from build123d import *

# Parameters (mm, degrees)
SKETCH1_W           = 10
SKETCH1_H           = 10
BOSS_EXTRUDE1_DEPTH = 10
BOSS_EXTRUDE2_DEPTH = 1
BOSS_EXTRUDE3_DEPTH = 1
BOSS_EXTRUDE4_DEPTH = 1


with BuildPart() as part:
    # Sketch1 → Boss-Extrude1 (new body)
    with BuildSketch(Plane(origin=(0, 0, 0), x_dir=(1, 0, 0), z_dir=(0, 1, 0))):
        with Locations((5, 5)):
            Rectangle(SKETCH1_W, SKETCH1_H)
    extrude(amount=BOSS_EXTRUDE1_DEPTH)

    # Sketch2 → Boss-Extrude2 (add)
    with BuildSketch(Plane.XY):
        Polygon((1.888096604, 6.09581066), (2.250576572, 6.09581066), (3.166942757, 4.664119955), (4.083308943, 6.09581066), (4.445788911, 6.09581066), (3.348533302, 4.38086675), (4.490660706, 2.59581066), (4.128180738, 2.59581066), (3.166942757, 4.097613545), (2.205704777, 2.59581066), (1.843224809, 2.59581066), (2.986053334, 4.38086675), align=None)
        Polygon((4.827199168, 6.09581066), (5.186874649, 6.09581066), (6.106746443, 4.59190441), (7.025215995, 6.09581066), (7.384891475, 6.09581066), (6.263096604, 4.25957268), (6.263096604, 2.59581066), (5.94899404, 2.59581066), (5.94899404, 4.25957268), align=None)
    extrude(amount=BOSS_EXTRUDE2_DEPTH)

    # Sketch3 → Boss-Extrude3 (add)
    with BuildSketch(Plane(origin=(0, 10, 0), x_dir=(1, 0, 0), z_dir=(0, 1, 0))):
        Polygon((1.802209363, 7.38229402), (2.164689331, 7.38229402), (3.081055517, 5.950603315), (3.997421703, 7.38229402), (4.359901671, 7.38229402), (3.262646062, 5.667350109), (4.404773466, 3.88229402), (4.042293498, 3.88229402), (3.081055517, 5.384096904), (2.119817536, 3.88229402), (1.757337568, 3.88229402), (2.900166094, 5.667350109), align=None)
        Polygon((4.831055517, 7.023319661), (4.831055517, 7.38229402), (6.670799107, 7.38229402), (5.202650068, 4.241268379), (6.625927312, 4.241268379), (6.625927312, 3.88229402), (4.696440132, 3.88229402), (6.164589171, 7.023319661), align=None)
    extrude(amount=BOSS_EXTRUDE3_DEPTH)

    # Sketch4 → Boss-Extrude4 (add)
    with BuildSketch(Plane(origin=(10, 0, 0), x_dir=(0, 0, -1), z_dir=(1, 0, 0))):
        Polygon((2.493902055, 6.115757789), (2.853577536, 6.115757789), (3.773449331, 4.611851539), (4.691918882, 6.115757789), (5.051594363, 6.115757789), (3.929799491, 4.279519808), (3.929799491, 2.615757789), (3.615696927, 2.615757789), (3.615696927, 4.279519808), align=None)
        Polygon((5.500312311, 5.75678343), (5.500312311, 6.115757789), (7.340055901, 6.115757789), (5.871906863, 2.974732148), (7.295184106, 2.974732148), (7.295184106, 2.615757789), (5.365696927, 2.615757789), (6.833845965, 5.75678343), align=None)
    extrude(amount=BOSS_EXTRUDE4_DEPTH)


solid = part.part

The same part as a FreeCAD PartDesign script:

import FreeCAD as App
import Part
import Sketcher
Q = App.Units.Quantity


def add_polygon(sketch, points):
    """Adds a closed chain of lines whose ends are joined by coincident constraints."""
    first, n = sketch.GeometryCount, len(points)
    for a, b in zip(points, points[1:] + points[:1]):
        sketch.addGeometry(Part.LineSegment(App.Vector(*a, 0), App.Vector(*b, 0)), False)
    for i in range(n):
        sketch.addConstraint(Sketcher.Constraint("Coincident", first + i, 2, first + (i + 1) % n, 1))

doc = App.newDocument("Part")
body = doc.addObject("PartDesign::Body", "Body")

sketch1 = body.newObject("Sketcher::SketchObject", "Sketch")
sketch1.AttachmentSupport = (doc.getObject("XZ_Plane"), [""])
sketch1.MapMode = "FlatFace"
add_polygon(sketch1, [(0, -10), (0, 0), (10, 0), (10, -10)])
sketch1.addConstraint([
    Sketcher.Constraint("Vertical", 0),
    Sketcher.Constraint("Horizontal", 1),
    Sketcher.Constraint("Vertical", 2),
    Sketcher.Constraint("Horizontal", 3),
    Sketcher.Constraint("Coincident", 0, 2, -1, 1),
    Sketcher.Constraint("Equal", 3, 0),
    Sketcher.Constraint("DistanceX", 1, 1, 1, 2, Q("10 mm")),
])
pad1 = body.newObject("PartDesign::Pad", "Pad")
pad1.Profile = sketch1
pad1.Length = 10
pad1.Reversed = True

sketch2 = body.newObject("Sketcher::SketchObject", "Sketch001")
sketch2.AttachmentSupport = (doc.getObject("XY_Plane"), [""])
sketch2.MapMode = "FlatFace"
add_polygon(sketch2, [(2.25, 6.1), (1.89, 6.1), (2.99, 4.38), (1.84, 2.6), (2.21, 2.6), (3.17, 4.1), (4.13, 2.6), (4.49, 2.6), (3.35, 4.38), (4.45, 6.1), (4.08, 6.1), (3.17, 4.66)])
add_polygon(sketch2, [(5.19, 6.1), (4.83, 6.1), (5.95, 4.26), (5.95, 2.6), (6.26, 2.6), (6.26, 4.26), (7.38, 6.1), (7.03, 6.1), (6.11, 4.59)])
sketch2.addConstraint([
    Sketcher.Constraint("Horizontal", 0),
    Sketcher.Constraint("Horizontal", 3),
    Sketcher.Constraint("Horizontal", 6),
    Sketcher.Constraint("Horizontal", 9),
    Sketcher.Constraint("Horizontal", 12),
    Sketcher.Constraint("Vertical", 14),
    Sketcher.Constraint("Horizontal", 15),
    Sketcher.Constraint("Vertical", 16),
    Sketcher.Constraint("Horizontal", 18),
    Sketcher.Constraint("Parallel", 4, 10),
    Sketcher.Constraint("Parallel", 5, 11),
    Sketcher.Constraint("Horizontal", 3, 2, 5, 2),
    Sketcher.Constraint("Horizontal", 1, 2, 7, 2),
    Sketcher.Constraint("Horizontal", 0, 2, 8, 2),
    Sketcher.Constraint("Horizontal", 11, 2, 12, 2),
    Sketcher.Constraint("Horizontal", 6, 2, 14, 2),
    Sketcher.Constraint("Horizontal", 13, 2, 16, 2),
    Sketcher.Constraint("Horizontal", 12, 2, 17, 2),
    Sketcher.Constraint("Vertical", 4, 2, 10, 2),
    Sketcher.Constraint("Equal", 0, 3),
    Sketcher.Constraint("Equal", 3, 6),
    Sketcher.Constraint("Equal", 6, 9),
    Sketcher.Constraint("Equal", 12, 18),
    Sketcher.Constraint("Equal", 4, 5),
    Sketcher.Constraint("Equal", 13, 17),
    Sketcher.Constraint("DistanceY", 2, 2, 0, 2, Q("3.5 mm")),
    Sketcher.Constraint("DistanceX", 0, 2, 0, 1, Q("0.36248 mm")),
    Sketcher.Constraint("DistanceX", -1, 1, 12, 2, Q("4.827199 mm")),
    Sketcher.Constraint("Distance", 7, Q("2.11917 mm")),
    Sketcher.Constraint("Distance", 13, Q("2.151788 mm")),
    Sketcher.Constraint("Distance", 19, Q("1.762192 mm")),
    Sketcher.Constraint("DistanceX", 12, 2, 12, 1, Q("0.359675 mm")),
    Sketcher.Constraint("DistanceX", 15, 1, 15, 2, Q("0.314103 mm")),
    Sketcher.Constraint("DistanceY", 14, 2, 14, 1, Q("1.663762 mm")),
    Sketcher.Constraint("DistanceY", -1, 1, 0, 2, Q("6.095811 mm")),
    Sketcher.Constraint("DistanceX", -1, 1, 5, 2, Q("4.128181 mm")),
    Sketcher.Constraint("DistanceX", -1, 1, 8, 2, Q("4.445789 mm")),
    Sketcher.Constraint("DistanceY", -1, 1, 10, 2, Q("4.66412 mm")),
    Sketcher.Constraint("DistanceX", 2, 2, 1, 2, Q("1.142829 mm")),
    Sketcher.Constraint("DistanceX", 1, 2, 4, 2, Q("0.180889 mm")),
    Sketcher.Constraint("DistanceX", 4, 2, 7, 2, Q("0.181591 mm")),
    Sketcher.Constraint("DistanceX", 19, 2, 16, 2, Q("0.15635 mm")),
])
pad2 = body.newObject("PartDesign::Pad", "Pad001")
pad2.Profile = sketch2
pad2.Length = 1

sketch3 = body.newObject("Sketcher::SketchObject", "Sketch002")
sketch3.AttachmentSupport = (doc.getObject("XZ_Plane"), [""])
sketch3.MapMode = "FlatFace"
sketch3.AttachmentOffset = App.Placement(App.Vector(0, 0, -10), App.Rotation())
add_polygon(sketch3, [(2.16, -7.38), (1.8, -7.38), (2.9, -5.67), (1.76, -3.88), (2.12, -3.88), (3.08, -5.38), (4.04, -3.88), (4.4, -3.88), (3.26, -5.67), (4.36, -7.38), (4, -7.38), (3.08, -5.95)])
add_polygon(sketch3, [(4.83, -7.38), (4.83, -7.02), (6.16, -7.02), (4.7, -3.88), (6.63, -3.88), (6.63, -4.24), (5.2, -4.24), (6.67, -7.38)])
sketch3.addConstraint([
    Sketcher.Constraint("Horizontal", 0),
    Sketcher.Constraint("Horizontal", 3),
    Sketcher.Constraint("Horizontal", 6),
    Sketcher.Constraint("Horizontal", 9),
    Sketcher.Constraint("Vertical", 12),
    Sketcher.Constraint("Horizontal", 13),
    Sketcher.Constraint("Horizontal", 15),
    Sketcher.Constraint("Vertical", 16),
    Sketcher.Constraint("Horizontal", 17),
    Sketcher.Constraint("Horizontal", 19),
    Sketcher.Constraint("Parallel", 4, 10),
    Sketcher.Constraint("Parallel", 5, 11),
    Sketcher.Constraint("Parallel", 14, 18),
    Sketcher.Constraint("Horizontal", 3, 2, 5, 2),
    Sketcher.Constraint("Horizontal", 1, 2, 7, 2),
    Sketcher.Constraint("Horizontal", 0, 2, 8, 2),
    Sketcher.Constraint("Horizontal", 6, 2, 14, 2),
    Sketcher.Constraint("Horizontal", 11, 2, 18, 2),
    Sketcher.Constraint("Vertical", 4, 2, 10, 2),
    Sketcher.Constraint("Equal", 0, 3),
    Sketcher.Constraint("Equal", 3, 6),
    Sketcher.Constraint("Equal", 6, 9),
    Sketcher.Constraint("Equal", 12, 16),
    Sketcher.Constraint("Equal", 4, 5),
    Sketcher.Constraint("DistanceY", 0, 2, 2, 2, Q("3.5 mm")),
    Sketcher.Constraint("DistanceX", 10, 2, 12, 2, Q("1.75 mm")),
    Sketcher.Constraint("DistanceX", 0, 2, 0, 1, Q("0.36248 mm")),
    Sketcher.Constraint("DistanceX", -1, 1, 8, 2, Q("4.359902 mm")),
    Sketcher.Constraint("DistanceX", -1, 1, 18, 2, Q("6.670799 mm")),
    Sketcher.Constraint("Distance", 7, Q("2.11917 mm")),
    Sketcher.Constraint("DistanceX", 13, 1, 13, 2, Q("1.333534 mm")),
    Sketcher.Constraint("DistanceX", 15, 1, 15, 2, Q("1.929487 mm")),
    Sketcher.Constraint("DistanceX", 17, 2, 17, 1, Q("1.423277 mm")),
    Sketcher.Constraint("DistanceY", 12, 1, 12, 2, Q("0.358974 mm")),
    Sketcher.Constraint("DistanceY", 1, 2, -1, 1, Q("5.66735 mm")),
    Sketcher.Constraint("DistanceY", 12, 2, -1, 1, Q("7.02332 mm")),
    Sketcher.Constraint("DistanceX", -1, 1, 14, 2, Q("4.69644 mm")),
    Sketcher.Constraint("DistanceX", 2, 2, 1, 2, Q("1.142829 mm")),
    Sketcher.Constraint("DistanceX", 2, 2, 0, 2, Q("0.044872 mm")),
    Sketcher.Constraint("DistanceY", 9, 2, 10, 2, Q("1.431691 mm")),
])
pad3 = body.newObject("PartDesign::Pad", "Pad002")
pad3.Profile = sketch3
pad3.Length = 1
pad3.Reversed = True

sketch4 = body.newObject("Sketcher::SketchObject", "Sketch003")
sketch4.AttachmentSupport = (doc.getObject("YZ_Plane"), [""])
sketch4.MapMode = "FlatFace"
sketch4.AttachmentOffset = App.Placement(App.Vector(0, 0, 10), App.Rotation())
add_polygon(sketch4, [(6.12, -2.85), (6.12, -2.49), (4.28, -3.62), (2.62, -3.62), (2.62, -3.93), (4.28, -3.93), (6.12, -5.05), (6.12, -4.69), (4.61, -3.77)])
add_polygon(sketch4, [(6.12, -5.5), (5.76, -5.5), (5.76, -6.83), (2.62, -5.37), (2.62, -7.3), (2.97, -7.3), (2.97, -5.87), (6.12, -7.34)])
sketch4.addConstraint([
    Sketcher.Constraint("Vertical", 0),
    Sketcher.Constraint("Horizontal", 2),
    Sketcher.Constraint("Vertical", 3),
    Sketcher.Constraint("Horizontal", 4),
    Sketcher.Constraint("Vertical", 6),
    Sketcher.Constraint("Horizontal", 9),
    Sketcher.Constraint("Vertical", 10),
    Sketcher.Constraint("Vertical", 12),
    Sketcher.Constraint("Horizontal", 13),
    Sketcher.Constraint("Vertical", 14),
    Sketcher.Constraint("Vertical", 16),
    Sketcher.Constraint("Parallel", 11, 15),
    Sketcher.Constraint("Vertical", 1, 2, 4, 2),
    Sketcher.Constraint("Vertical", 0, 2, 5, 2),
    Sketcher.Constraint("Vertical", 3, 2, 11, 2),
    Sketcher.Constraint("Vertical", 8, 2, 15, 2),
    Sketcher.Constraint("Equal", 9, 13),
    Sketcher.Constraint("Equal", 0, 6),
    Sketcher.Constraint("Equal", 1, 5),
    Sketcher.Constraint("DistanceX", 2, 2, 0, 2, Q("3.5 mm")),
    Sketcher.Constraint("DistanceY", 11, 2, 2, 2, Q("1.75 mm")),
    Sketcher.Constraint("DistanceY", 3, 2, -1, 1, Q("3.929799 mm")),
    Sketcher.Constraint("Distance", 1, Q("2.151788 mm")),
    Sketcher.Constraint("Distance", 7, Q("1.762192 mm")),
    Sketcher.Constraint("DistanceX", 2, 2, 2, 1, Q("1.663762 mm")),
    Sketcher.Constraint("DistanceX", 9, 2, 9, 1, Q("0.358974 mm")),
    Sketcher.Constraint("DistanceY", 0, 1, 0, 2, Q("0.359675 mm")),
    Sketcher.Constraint("DistanceY", 3, 2, 3, 1, Q("0.314103 mm")),
    Sketcher.Constraint("DistanceY", 10, 2, 10, 1, Q("1.333534 mm")),
    Sketcher.Constraint("DistanceY", 12, 2, 12, 1, Q("1.929487 mm")),
    Sketcher.Constraint("DistanceY", 14, 1, 14, 2, Q("1.423277 mm")),
    Sketcher.Constraint("DistanceX", -1, 1, 1, 2, Q("4.27952 mm")),
    Sketcher.Constraint("DistanceX", -1, 1, 7, 2, Q("4.611852 mm")),
    Sketcher.Constraint("DistanceY", 10, 2, 5, 2, Q("1.782252 mm")),
])
pad4 = body.newObject("PartDesign::Pad", "Pad003")
pad4.Profile = sketch4
pad4.Length = 1

doc.recompute()
